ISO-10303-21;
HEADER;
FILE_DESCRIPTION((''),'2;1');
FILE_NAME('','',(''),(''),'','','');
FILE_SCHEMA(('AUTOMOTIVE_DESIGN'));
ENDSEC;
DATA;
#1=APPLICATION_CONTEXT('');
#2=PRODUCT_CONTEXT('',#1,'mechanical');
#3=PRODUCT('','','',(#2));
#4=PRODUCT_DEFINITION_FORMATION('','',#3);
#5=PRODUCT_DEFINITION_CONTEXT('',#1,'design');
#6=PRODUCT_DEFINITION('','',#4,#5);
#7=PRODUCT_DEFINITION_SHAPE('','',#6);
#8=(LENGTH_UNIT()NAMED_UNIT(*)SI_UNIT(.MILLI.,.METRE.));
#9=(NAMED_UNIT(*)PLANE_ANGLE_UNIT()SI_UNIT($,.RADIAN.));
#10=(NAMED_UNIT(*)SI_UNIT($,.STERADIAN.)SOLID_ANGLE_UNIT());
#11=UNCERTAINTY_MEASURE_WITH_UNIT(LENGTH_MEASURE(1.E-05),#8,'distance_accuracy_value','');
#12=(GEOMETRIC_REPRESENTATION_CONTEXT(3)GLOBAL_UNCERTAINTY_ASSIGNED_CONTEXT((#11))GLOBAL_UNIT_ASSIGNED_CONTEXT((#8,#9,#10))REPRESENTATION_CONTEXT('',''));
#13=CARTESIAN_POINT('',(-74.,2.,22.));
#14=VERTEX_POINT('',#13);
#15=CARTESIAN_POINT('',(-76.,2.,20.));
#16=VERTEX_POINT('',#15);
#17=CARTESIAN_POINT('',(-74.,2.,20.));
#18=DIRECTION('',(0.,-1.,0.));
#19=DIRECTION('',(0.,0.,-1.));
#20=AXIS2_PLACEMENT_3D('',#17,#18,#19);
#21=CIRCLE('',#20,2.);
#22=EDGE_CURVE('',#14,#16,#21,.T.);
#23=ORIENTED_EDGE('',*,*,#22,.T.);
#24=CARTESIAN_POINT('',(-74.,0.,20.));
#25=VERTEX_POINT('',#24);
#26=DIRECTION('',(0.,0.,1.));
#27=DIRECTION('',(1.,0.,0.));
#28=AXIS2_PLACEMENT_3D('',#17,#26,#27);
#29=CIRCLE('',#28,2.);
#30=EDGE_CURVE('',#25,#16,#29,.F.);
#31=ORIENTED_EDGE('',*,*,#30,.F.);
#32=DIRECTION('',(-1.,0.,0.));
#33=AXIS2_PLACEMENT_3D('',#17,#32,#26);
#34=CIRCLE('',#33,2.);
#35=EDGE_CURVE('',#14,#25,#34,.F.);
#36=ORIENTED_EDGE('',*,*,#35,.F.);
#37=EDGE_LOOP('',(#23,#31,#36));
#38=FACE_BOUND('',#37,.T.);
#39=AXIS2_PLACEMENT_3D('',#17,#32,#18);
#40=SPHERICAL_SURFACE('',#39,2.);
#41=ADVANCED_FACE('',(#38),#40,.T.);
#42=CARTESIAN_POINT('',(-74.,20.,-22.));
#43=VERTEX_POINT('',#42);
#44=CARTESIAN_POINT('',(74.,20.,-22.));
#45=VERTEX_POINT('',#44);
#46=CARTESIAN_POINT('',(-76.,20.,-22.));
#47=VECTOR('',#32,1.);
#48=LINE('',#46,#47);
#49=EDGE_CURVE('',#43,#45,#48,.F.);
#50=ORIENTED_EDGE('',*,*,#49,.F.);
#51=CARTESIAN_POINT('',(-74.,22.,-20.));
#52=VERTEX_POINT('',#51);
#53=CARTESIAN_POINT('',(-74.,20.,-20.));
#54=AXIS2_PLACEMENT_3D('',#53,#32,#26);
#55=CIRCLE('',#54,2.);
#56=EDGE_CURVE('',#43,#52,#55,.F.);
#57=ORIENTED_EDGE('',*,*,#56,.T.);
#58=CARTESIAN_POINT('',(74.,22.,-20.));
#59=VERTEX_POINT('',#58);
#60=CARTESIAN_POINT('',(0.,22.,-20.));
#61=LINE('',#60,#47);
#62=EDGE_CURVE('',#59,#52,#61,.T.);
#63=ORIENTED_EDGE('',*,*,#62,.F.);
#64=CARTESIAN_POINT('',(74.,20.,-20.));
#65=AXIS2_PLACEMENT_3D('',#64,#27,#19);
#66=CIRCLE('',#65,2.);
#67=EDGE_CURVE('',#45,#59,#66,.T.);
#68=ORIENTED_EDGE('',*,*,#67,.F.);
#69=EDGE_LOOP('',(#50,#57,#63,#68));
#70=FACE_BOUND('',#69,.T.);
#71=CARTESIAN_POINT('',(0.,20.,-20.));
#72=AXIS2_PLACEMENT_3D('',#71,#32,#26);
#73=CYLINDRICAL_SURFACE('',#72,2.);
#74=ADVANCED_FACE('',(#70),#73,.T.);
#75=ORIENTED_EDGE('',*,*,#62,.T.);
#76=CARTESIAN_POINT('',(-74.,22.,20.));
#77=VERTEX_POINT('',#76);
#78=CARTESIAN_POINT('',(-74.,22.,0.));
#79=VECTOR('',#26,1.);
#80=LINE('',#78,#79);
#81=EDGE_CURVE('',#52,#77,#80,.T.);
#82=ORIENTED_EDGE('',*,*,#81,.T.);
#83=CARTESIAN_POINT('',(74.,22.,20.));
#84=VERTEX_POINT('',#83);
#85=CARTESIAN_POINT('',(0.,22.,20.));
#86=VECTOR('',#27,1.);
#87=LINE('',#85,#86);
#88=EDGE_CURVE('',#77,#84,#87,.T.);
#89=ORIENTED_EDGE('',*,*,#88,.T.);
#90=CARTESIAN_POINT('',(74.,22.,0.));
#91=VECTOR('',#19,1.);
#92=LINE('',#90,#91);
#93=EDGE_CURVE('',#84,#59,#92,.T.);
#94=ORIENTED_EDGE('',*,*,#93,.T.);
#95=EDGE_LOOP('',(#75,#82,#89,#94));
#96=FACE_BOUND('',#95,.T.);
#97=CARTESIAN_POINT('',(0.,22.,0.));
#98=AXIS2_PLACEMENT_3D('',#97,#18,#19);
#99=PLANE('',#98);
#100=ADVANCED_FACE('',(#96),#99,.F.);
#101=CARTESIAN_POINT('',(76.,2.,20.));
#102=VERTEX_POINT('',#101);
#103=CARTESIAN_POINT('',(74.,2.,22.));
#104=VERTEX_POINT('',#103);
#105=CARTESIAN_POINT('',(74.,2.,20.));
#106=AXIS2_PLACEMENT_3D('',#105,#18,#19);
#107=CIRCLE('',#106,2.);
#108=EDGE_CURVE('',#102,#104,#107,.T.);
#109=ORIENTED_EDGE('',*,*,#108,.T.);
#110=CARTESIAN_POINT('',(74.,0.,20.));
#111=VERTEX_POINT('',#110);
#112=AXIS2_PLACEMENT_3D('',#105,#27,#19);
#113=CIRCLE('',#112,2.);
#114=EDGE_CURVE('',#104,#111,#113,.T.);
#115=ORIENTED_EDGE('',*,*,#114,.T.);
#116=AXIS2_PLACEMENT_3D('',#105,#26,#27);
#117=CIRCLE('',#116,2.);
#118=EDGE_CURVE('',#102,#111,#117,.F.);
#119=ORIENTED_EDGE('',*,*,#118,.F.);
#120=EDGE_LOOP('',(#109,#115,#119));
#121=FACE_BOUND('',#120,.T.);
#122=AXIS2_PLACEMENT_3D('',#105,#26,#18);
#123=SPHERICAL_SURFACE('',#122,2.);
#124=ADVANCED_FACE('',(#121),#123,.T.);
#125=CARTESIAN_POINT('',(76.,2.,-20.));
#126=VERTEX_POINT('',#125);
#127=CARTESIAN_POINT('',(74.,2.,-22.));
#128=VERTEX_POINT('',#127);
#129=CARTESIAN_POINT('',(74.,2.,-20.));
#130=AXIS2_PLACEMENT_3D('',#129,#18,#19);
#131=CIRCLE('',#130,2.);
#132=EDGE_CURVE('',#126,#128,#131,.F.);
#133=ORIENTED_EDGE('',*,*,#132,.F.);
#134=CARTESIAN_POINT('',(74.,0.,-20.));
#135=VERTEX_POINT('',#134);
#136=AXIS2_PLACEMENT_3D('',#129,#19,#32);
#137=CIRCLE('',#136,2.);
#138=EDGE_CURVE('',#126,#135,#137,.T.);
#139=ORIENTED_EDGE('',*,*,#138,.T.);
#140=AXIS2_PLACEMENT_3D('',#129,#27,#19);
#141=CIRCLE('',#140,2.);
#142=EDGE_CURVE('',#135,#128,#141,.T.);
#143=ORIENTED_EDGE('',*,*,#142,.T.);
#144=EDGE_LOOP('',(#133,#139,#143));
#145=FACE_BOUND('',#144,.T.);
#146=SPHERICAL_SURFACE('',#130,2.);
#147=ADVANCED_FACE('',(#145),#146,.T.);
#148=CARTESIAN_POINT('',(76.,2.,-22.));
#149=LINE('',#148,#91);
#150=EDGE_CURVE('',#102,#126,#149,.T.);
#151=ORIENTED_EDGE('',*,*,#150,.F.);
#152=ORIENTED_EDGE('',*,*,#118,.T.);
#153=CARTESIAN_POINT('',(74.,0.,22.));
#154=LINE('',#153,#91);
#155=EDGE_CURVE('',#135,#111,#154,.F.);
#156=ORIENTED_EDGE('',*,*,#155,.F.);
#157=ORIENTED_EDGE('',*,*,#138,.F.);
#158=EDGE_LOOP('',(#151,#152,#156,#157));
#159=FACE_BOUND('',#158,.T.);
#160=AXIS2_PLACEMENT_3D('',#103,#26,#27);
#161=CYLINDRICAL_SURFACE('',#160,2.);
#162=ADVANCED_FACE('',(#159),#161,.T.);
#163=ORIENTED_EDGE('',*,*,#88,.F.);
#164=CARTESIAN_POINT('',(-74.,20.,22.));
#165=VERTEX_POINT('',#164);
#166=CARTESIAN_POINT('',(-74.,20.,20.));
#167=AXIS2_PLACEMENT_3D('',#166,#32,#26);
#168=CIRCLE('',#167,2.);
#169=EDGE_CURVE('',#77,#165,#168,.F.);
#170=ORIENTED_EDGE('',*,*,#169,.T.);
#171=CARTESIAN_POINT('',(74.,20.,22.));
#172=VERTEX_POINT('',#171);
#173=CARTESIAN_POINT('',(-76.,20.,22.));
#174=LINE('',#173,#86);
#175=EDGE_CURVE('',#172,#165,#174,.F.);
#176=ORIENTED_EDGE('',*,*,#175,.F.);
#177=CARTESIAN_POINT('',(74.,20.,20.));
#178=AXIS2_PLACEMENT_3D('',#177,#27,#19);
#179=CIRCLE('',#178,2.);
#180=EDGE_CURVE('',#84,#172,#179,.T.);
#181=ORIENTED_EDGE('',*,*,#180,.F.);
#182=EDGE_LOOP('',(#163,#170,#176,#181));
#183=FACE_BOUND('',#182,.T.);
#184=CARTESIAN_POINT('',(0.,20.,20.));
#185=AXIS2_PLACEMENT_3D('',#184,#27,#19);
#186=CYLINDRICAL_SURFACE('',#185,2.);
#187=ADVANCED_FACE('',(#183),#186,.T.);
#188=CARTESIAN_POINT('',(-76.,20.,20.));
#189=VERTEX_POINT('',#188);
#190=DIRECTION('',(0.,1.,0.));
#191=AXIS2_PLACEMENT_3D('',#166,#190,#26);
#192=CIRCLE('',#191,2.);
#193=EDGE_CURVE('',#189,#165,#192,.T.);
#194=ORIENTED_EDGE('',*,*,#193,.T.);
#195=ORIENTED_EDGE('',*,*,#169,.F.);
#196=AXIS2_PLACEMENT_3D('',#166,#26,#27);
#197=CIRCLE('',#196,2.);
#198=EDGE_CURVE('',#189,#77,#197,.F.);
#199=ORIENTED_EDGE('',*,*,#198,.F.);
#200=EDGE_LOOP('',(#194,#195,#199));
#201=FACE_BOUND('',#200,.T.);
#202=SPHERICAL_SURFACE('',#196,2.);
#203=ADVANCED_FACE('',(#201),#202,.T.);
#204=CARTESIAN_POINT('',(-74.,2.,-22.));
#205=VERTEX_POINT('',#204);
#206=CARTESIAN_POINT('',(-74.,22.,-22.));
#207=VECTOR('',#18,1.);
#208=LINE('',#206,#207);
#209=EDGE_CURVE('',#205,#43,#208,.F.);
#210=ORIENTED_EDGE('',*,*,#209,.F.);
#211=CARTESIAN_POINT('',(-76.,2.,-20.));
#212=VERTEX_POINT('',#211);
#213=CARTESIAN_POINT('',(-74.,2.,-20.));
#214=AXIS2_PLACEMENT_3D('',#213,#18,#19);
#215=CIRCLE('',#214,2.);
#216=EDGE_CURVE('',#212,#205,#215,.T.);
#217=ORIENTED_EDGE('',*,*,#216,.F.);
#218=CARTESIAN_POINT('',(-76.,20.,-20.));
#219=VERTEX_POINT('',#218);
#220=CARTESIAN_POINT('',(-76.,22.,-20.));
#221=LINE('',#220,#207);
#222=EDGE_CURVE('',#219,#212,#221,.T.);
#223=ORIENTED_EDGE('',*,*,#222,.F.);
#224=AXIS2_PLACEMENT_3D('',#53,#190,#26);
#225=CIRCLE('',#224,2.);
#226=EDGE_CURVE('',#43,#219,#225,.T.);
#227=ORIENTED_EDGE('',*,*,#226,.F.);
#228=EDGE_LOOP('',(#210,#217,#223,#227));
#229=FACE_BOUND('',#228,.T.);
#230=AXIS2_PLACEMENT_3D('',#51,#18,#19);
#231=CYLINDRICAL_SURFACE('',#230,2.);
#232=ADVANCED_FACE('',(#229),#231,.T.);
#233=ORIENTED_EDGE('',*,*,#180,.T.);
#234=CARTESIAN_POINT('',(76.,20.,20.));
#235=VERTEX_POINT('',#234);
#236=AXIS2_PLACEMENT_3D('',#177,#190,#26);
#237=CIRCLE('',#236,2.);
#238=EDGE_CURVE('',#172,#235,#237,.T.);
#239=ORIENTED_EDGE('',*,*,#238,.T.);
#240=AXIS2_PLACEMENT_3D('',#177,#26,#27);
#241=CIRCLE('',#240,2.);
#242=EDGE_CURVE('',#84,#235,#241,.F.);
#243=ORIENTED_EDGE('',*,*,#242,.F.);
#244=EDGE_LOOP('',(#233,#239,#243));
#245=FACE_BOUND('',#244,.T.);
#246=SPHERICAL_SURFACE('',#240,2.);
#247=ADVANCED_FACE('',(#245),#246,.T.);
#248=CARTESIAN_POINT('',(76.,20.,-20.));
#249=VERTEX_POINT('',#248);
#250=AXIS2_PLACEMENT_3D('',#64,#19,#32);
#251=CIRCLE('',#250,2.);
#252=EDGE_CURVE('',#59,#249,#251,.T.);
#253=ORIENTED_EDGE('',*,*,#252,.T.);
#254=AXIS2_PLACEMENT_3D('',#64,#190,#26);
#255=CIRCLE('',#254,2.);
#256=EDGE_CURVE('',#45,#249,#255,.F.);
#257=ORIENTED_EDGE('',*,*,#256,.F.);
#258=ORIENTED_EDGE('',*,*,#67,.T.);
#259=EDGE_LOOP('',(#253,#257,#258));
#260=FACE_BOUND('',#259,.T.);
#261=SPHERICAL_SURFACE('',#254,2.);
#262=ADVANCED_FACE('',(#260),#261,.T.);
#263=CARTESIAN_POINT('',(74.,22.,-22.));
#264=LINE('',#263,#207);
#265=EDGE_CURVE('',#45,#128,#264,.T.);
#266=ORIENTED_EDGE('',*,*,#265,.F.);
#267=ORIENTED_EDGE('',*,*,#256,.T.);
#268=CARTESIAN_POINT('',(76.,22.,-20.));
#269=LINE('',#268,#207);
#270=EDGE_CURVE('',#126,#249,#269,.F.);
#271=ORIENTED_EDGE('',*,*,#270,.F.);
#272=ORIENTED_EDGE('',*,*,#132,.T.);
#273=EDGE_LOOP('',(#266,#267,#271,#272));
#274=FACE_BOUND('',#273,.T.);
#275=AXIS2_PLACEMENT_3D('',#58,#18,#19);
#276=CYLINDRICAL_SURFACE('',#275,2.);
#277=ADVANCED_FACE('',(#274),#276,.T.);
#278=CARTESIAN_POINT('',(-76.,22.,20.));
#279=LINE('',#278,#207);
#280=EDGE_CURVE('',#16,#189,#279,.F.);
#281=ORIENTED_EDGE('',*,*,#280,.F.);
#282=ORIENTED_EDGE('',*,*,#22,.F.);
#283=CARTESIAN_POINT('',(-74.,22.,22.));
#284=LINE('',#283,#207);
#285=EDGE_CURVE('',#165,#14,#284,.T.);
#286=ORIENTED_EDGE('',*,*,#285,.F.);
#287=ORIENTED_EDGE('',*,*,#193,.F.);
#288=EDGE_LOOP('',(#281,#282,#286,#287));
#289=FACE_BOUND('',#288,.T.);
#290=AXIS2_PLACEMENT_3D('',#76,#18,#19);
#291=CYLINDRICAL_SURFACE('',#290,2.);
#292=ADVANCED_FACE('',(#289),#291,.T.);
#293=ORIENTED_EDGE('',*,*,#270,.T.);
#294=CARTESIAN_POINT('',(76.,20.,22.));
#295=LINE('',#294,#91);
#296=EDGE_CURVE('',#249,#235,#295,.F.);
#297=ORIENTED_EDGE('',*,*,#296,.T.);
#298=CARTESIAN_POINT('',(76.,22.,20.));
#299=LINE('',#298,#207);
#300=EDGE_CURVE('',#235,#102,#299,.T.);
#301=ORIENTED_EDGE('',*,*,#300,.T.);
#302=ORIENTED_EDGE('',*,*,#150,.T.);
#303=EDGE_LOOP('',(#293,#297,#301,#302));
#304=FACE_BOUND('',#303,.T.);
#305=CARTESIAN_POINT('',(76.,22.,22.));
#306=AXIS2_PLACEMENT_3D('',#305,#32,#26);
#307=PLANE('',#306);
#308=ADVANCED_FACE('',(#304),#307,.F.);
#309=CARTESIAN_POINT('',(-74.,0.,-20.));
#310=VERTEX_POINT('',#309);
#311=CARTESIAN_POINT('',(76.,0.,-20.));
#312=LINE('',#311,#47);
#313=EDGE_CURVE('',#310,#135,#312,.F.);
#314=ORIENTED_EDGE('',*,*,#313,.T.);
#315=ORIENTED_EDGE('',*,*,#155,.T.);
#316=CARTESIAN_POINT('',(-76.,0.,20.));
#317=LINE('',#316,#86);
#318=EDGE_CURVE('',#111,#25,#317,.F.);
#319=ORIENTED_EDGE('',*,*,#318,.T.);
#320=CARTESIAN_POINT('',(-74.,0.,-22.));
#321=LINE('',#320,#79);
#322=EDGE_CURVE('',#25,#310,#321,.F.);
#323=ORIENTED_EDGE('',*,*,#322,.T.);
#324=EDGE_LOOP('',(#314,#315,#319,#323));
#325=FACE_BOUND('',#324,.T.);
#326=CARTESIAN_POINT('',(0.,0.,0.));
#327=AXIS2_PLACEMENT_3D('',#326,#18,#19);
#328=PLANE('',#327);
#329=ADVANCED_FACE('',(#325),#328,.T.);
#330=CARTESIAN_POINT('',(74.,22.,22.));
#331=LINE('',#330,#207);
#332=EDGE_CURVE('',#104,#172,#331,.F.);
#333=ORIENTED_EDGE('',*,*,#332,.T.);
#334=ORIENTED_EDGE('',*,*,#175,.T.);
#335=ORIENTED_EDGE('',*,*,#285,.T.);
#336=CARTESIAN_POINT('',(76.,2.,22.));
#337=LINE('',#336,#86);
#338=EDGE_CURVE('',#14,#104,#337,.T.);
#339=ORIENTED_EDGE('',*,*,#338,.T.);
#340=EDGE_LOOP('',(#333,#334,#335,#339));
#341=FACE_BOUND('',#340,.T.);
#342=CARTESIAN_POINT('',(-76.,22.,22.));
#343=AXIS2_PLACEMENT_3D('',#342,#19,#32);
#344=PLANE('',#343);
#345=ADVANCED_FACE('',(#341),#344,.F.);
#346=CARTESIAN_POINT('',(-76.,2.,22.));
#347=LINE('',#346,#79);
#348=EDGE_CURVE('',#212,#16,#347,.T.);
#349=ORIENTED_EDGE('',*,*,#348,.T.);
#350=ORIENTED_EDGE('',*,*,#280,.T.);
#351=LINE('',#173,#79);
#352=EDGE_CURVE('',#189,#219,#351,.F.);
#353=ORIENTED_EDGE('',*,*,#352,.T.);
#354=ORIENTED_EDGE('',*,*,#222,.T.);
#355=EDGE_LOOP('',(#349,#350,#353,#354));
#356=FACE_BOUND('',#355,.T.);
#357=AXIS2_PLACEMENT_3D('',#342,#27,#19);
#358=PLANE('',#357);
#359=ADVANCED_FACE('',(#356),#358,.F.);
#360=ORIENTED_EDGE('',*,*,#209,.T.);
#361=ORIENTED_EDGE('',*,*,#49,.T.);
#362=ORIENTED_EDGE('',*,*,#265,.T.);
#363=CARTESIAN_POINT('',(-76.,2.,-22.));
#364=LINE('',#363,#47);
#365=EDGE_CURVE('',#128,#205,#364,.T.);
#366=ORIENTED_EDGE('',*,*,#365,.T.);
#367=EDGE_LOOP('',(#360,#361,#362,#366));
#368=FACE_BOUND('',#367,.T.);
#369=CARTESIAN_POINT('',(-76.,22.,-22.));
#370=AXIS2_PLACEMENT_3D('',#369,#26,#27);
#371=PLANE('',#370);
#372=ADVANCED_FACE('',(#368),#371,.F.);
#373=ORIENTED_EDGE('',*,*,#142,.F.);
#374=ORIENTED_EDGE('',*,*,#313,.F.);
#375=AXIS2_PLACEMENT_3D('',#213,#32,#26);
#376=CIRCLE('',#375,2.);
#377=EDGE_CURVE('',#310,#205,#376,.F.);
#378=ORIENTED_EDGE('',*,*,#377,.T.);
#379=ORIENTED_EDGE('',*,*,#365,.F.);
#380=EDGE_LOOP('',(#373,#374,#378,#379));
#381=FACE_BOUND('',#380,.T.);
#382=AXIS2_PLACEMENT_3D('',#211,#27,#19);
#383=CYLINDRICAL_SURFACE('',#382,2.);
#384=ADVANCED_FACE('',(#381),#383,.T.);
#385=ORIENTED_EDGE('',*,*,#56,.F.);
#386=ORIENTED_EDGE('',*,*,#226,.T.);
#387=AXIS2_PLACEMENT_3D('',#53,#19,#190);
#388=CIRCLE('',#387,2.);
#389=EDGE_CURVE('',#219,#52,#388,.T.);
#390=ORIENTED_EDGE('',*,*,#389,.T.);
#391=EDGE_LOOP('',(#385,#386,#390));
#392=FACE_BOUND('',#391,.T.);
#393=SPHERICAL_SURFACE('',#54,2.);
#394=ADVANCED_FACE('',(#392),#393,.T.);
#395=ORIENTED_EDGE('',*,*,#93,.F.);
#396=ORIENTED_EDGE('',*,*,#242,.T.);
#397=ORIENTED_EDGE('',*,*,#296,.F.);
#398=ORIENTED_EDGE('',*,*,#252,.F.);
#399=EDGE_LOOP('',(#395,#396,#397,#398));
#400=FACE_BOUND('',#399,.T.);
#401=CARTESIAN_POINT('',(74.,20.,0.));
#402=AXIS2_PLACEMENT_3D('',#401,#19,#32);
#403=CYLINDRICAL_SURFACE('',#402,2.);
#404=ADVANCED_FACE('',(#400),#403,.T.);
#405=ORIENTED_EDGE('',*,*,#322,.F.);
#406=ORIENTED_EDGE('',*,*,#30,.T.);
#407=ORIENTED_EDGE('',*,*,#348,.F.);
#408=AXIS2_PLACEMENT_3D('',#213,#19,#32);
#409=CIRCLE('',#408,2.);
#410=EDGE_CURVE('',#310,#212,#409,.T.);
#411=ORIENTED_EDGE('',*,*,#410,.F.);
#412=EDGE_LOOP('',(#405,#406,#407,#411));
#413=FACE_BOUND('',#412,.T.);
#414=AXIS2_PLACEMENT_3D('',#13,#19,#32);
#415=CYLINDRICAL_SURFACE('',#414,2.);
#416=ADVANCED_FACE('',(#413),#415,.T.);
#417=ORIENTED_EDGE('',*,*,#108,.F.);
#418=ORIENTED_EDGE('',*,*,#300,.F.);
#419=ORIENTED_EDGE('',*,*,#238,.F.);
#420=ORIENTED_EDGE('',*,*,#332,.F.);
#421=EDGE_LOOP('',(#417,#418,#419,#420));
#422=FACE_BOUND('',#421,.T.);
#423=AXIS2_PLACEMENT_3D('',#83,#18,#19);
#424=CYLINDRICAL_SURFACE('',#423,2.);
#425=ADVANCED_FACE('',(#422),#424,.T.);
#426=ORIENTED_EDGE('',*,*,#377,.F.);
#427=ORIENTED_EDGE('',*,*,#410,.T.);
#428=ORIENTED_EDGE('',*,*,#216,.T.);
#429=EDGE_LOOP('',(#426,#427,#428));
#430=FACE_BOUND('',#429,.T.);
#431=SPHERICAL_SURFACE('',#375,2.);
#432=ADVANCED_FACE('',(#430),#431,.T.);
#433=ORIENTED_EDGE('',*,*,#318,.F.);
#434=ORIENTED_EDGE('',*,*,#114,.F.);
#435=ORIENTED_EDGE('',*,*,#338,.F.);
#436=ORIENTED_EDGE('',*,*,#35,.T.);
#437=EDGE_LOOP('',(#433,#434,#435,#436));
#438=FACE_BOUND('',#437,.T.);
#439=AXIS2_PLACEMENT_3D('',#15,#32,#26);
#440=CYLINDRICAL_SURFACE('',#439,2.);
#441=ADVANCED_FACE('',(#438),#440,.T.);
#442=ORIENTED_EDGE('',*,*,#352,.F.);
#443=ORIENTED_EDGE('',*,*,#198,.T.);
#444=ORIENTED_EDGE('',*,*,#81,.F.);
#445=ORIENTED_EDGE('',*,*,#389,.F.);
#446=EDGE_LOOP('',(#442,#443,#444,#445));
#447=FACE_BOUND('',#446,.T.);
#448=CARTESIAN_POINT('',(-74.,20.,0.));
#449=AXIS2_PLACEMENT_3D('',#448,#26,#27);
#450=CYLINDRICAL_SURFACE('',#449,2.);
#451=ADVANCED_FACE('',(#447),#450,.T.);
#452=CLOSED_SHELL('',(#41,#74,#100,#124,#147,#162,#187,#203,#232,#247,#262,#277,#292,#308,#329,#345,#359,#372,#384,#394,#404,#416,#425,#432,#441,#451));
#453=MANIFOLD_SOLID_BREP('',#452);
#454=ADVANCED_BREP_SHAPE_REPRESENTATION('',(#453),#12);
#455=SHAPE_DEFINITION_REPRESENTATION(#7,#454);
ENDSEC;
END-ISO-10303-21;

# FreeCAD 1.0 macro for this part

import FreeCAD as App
import Part
import Sketcher
Q = App.Units.Quantity

doc = App.newDocument("Part")
params = doc.addObject("Spreadsheet::Sheet", "Params")
for row, (alias, value) in enumerate([
    ("sketch1_width", "152 mm"),
    ("sketch1_height", "44 mm"),
    ("pad1_length", "22 mm"),
    ("fillet_radius", "2 mm"),
], start=1):
    params.set(f"A{row}", alias)
    params.set(f"B{row}", "=" + value)
    params.setAlias(f"B{row}", alias)

body = doc.addObject("PartDesign::Body", "Body")

# Sketch on XZ plane
sketch1 = body.newObject("Sketcher::SketchObject", "Sketch")
sketch1.AttachmentSupport = (doc.getObject("XZ_Plane"), [""])
sketch1.MapMode = "FlatFace"
sketch1.addGeometry([
    Part.LineSegment(App.Vector(-76, -22, 0), App.Vector(-76, 22, 0)),
    Part.LineSegment(App.Vector(-76, 22, 0), App.Vector(76, 22, 0)),
    Part.LineSegment(App.Vector(76, 22, 0), App.Vector(76, -22, 0)),
    Part.LineSegment(App.Vector(76, -22, 0), App.Vector(-76, -22, 0)),
], False)
sketch1.addConstraint([
    Sketcher.Constraint("Coincident", 0, 2, 1, 1),
    Sketcher.Constraint("Coincident", 1, 2, 2, 1),
    Sketcher.Constraint("Coincident", 2, 2, 3, 1),
    Sketcher.Constraint("Coincident", 3, 2, 0, 1),
    Sketcher.Constraint("Vertical", 0),
    Sketcher.Constraint("Horizontal", 1),
    Sketcher.Constraint("Vertical", 2),
    Sketcher.Constraint("Horizontal", 3),
    Sketcher.Constraint("Symmetric", 0, 2, 2, 2, -1, 1),
    Sketcher.Constraint("DistanceX", 1, 1, 1, 2, Q("152 mm")),
    Sketcher.Constraint("DistanceY", 0, 1, 0, 2, Q("44 mm")),
])
sketch1.setExpression("Constraints[9]", "Params.sketch1_width")
sketch1.setExpression("Constraints[10]", "Params.sketch1_height")
pad1 = body.newObject("PartDesign::Pad", "Pad")
pad1.Profile = sketch1
pad1.setExpression("Length", "Params.pad1_length")
pad1.Reversed = True
doc.recompute()

fillet = body.newObject("PartDesign::Fillet", "Fillet")
fillet.Base = (pad1, ["Edge1"])
fillet.UseAllEdges = True
fillet.setExpression("Radius", "Params.fillet_radius")

doc.recompute()
